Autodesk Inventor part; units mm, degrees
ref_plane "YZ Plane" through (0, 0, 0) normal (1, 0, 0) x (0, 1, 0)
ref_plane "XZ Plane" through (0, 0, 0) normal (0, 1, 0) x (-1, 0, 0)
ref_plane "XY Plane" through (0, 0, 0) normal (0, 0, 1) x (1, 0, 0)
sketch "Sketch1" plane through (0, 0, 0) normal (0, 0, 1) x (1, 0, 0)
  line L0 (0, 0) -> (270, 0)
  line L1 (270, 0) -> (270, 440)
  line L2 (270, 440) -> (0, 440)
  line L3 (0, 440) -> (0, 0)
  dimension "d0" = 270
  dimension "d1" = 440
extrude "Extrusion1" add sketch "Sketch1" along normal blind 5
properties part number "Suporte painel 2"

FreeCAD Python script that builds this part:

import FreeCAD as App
import Part
import Sketcher
Q = App.Units.Quantity


def add_polygon(sketch, points):
    """Adds a closed chain of lines whose ends are joined by coincident constraints."""
    first, n = sketch.GeometryCount, len(points)
    for a, b in zip(points, points[1:] + points[:1]):
        sketch.addGeometry(Part.LineSegment(App.Vector(*a, 0), App.Vector(*b, 0)), False)
    for i in range(n):
        sketch.addConstraint(Sketcher.Constraint("Coincident", first + i, 2, first + (i + 1) % n, 1))

doc = App.newDocument("Part")
body = doc.addObject("PartDesign::Body", "Body")

sketch1 = body.newObject("Sketcher::SketchObject", "Sketch")
sketch1.AttachmentSupport = (doc.getObject("XY_Plane"), [""])
sketch1.MapMode = "FlatFace"
add_polygon(sketch1, [(0, 440), (0, 0), (270, 0), (270, 440)])
sketch1.addConstraint(Sketcher.Constraint("Vertical", 0))
sketch1.addConstraint(Sketcher.Constraint("Horizontal", 1))
sketch1.addConstraint(Sketcher.Constraint("Vertical", 2))
sketch1.addConstraint(Sketcher.Constraint("Horizontal", 3))
sketch1.addConstraint(Sketcher.Constraint("Coincident", 0, 2, -1, 1))
sketch1.addConstraint(Sketcher.Constraint("DistanceX", 1, 1, 1, 2, Q("270 mm")))
sketch1.addConstraint(Sketcher.Constraint("DistanceY", 0, 2, 0, 1, Q("440 mm")))
pad1 = body.newObject("PartDesign::Pad", "Pad")
pad1.Profile = sketch1
pad1.Length = 5

doc.recompute()
